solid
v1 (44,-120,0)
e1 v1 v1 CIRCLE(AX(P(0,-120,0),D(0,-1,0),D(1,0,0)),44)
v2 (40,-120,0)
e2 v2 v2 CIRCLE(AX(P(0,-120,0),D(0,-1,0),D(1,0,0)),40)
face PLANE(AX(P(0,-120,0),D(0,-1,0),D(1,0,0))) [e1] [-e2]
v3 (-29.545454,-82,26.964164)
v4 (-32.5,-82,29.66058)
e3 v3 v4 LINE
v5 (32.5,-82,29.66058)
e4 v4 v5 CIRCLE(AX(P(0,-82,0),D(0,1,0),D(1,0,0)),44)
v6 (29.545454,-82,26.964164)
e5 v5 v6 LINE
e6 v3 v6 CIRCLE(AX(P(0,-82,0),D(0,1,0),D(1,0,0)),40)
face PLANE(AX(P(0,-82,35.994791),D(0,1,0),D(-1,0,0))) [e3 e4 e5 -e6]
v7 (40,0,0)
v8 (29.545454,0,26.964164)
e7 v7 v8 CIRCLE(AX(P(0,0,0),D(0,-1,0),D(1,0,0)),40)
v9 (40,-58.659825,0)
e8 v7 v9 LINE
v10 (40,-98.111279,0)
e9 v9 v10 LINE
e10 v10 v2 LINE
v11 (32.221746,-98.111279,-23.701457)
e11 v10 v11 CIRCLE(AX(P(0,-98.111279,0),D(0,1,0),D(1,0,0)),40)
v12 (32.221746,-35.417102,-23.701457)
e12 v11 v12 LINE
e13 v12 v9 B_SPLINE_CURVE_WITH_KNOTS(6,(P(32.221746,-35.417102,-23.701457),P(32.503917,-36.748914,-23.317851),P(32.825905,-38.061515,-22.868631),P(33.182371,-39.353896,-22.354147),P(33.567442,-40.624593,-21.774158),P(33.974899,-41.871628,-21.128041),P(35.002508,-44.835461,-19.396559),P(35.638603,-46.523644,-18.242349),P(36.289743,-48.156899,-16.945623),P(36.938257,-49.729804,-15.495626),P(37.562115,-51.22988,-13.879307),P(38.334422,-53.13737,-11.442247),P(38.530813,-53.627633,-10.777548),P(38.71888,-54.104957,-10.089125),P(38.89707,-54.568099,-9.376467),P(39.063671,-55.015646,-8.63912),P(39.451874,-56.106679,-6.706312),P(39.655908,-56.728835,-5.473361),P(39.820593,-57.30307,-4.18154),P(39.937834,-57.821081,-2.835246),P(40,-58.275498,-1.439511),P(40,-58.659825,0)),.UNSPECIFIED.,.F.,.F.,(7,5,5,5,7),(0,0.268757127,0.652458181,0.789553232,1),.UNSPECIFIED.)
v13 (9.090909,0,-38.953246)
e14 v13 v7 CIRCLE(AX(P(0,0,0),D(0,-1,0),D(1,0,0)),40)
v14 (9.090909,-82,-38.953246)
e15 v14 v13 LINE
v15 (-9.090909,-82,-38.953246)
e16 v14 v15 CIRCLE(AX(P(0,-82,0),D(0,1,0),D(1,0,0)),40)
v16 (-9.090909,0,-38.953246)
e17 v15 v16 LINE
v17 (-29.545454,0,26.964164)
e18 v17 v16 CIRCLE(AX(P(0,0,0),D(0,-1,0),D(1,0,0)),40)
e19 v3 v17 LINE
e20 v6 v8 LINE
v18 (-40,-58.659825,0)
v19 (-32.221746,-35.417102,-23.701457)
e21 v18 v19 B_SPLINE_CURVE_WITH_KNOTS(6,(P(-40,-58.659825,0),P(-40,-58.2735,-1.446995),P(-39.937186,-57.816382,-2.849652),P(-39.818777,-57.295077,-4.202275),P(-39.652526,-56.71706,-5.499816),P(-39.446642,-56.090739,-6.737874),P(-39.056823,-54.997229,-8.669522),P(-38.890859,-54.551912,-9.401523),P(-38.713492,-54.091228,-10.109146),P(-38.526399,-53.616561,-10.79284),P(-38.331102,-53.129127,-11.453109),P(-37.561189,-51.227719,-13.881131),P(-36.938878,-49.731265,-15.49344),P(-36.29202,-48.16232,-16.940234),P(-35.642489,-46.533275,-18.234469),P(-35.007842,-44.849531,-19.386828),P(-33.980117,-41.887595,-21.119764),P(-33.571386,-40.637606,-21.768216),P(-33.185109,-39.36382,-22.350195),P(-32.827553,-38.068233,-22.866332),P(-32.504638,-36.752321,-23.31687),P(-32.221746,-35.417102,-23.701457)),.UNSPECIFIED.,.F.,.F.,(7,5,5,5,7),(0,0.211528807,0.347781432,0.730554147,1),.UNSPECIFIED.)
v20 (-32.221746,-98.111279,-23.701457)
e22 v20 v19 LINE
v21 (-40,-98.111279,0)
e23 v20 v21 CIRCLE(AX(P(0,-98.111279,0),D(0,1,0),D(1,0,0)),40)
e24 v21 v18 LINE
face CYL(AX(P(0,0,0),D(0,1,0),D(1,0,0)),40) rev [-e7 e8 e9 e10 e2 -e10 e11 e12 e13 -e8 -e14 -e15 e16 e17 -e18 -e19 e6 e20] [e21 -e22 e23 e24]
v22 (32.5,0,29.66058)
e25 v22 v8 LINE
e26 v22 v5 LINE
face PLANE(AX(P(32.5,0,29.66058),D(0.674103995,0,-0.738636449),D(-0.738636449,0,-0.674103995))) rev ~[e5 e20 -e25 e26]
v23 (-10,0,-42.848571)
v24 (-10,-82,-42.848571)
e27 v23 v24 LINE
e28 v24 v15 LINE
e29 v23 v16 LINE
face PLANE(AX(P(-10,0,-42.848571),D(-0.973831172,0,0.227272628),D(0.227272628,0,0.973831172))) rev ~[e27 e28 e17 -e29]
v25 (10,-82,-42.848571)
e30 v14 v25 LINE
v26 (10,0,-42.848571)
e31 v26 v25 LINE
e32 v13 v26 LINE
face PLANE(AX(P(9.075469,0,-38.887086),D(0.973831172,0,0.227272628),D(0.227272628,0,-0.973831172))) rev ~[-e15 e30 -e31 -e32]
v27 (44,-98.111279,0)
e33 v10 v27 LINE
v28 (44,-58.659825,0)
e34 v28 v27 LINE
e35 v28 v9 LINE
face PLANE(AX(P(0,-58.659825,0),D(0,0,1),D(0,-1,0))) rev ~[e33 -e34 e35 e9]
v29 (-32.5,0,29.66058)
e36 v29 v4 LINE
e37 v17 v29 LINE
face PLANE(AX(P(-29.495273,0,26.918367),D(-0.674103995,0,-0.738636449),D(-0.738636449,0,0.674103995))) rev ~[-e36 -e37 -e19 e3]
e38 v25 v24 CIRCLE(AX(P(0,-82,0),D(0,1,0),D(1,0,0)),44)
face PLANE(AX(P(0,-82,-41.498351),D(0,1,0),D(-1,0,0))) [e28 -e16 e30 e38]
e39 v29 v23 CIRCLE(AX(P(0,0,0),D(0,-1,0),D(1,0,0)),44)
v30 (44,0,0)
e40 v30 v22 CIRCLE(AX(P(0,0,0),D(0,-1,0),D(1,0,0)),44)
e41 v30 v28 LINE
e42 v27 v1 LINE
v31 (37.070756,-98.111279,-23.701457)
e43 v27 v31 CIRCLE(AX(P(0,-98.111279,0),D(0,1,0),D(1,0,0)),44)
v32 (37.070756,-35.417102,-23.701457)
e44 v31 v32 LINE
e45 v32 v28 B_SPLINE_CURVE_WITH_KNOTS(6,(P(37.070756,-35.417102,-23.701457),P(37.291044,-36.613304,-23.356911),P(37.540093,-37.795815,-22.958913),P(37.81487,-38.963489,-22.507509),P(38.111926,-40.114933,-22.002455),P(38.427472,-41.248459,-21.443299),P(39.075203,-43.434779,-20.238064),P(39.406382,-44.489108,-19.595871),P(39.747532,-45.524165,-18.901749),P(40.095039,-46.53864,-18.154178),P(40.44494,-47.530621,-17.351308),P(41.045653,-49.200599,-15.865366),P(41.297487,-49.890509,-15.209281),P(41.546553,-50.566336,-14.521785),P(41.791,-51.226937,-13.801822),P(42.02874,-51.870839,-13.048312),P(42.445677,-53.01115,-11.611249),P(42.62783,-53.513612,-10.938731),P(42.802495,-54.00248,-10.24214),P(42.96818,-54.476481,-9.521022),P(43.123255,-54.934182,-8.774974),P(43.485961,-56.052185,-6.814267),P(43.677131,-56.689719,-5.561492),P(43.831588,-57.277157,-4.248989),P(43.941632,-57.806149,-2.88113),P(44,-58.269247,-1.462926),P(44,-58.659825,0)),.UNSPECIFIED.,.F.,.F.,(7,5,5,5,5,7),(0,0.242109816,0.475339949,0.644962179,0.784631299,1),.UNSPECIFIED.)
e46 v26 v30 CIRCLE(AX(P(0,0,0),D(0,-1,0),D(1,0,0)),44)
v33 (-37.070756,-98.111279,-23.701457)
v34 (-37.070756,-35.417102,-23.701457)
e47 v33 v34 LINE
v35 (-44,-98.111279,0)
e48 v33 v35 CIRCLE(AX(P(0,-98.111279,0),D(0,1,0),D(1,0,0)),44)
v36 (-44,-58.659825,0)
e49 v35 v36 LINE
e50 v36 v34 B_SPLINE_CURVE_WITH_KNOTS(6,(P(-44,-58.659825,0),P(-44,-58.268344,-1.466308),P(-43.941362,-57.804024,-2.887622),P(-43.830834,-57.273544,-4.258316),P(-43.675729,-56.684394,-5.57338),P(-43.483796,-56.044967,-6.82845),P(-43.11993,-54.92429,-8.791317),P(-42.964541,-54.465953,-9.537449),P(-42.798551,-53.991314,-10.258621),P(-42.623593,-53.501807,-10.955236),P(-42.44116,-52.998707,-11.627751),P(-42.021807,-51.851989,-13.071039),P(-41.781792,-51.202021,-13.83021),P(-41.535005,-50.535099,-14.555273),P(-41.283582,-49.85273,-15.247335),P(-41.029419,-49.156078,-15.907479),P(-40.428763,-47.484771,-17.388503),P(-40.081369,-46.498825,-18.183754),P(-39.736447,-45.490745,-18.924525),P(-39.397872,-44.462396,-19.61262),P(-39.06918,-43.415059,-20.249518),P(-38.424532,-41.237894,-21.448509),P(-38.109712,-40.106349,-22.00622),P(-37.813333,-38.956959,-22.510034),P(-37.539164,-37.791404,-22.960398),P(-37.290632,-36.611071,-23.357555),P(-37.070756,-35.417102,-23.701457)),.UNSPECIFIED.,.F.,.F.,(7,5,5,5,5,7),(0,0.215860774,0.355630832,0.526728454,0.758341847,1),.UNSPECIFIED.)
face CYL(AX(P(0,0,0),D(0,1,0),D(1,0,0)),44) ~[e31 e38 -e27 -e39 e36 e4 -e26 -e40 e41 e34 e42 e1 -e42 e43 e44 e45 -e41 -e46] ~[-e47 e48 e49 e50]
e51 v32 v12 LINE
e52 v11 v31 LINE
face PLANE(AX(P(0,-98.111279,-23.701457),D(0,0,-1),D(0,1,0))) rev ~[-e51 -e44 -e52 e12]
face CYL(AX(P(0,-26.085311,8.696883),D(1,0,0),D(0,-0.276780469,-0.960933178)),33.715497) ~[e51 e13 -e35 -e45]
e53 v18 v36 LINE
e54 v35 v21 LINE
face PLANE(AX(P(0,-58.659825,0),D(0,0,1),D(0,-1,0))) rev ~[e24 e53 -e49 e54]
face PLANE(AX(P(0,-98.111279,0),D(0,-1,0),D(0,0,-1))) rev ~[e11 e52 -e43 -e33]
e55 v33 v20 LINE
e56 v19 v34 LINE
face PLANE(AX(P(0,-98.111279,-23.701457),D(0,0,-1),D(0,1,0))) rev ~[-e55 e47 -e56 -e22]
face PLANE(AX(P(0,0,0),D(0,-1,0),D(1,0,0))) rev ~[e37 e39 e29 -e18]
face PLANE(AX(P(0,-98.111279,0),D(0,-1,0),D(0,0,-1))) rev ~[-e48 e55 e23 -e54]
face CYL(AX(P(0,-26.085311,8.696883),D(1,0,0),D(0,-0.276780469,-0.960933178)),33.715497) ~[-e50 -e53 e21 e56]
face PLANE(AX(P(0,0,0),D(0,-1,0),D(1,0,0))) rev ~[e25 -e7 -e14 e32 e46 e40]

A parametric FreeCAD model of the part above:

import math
import FreeCAD as App
import Part
import Sketcher

V = App.Vector
Q = App.Units.Quantity

doc = App.newDocument("Part")
params = doc.addObject("Spreadsheet::Sheet", "Params")
for row, (alias, value) in enumerate([
    ("sketch1_diameter", "88 mm"),
    ("sketch1_diameter2", "80 mm"),
    ("pad1_length", "120 mm"),
    ("pocket1_length", "82 mm"),
    ("pocket2_length", "125 mm"),
], start=1):
    params.set(f"A{row}", alias)
    params.set(f"B{row}", "=" + value)
    params.setAlias(f"B{row}", alias)

body = doc.addObject("PartDesign::Body", "Body")

sketch1 = body.newObject("Sketcher::SketchObject", "Sketch")
sketch1.AttachmentSupport = (doc.getObject("XZ_Plane"), [""])
sketch1.MapMode = "FlatFace"
sketch1.addGeometry([
    Part.Circle(V(0, 0, 0), V(0, 0, 1), 44),
    Part.Circle(V(0, 0, 0), V(0, 0, 1), 40),
], False)
sketch1.addConstraint([
    Sketcher.Constraint("Coincident", 0, 3, -1, 1),
    Sketcher.Constraint("Coincident", 1, 3, -1, 1),
    Sketcher.Constraint("Diameter", 0, Q("88 mm")),
    Sketcher.Constraint("Diameter", 1, Q("80 mm")),
])
sketch1.setExpression("Constraints[2]", "Params.sketch1_diameter")
sketch1.setExpression("Constraints[3]", "Params.sketch1_diameter2")
pad1 = body.newObject("PartDesign::Pad", "Pad")
pad1.Profile = sketch1
pad1.setExpression("Length", "Params.pad1_length")

sketch2 = body.newObject("Sketcher::SketchObject", "Sketch001")
sketch2.AttachmentSupport = (doc.getObject("XZ_Plane"), [""])
sketch2.MapMode = "FlatFace"
sketch2.addGeometry([
    Part.LineSegment(V(9.1, -38.9, 0), V(10, -42.8, 0)),
    Part.ArcOfCircle(Part.Circle(V(0, -1.8, 0), V(0, 0, 1), 42.3), math.radians(-104), math.radians(-76)),
    Part.LineSegment(V(-10, -42.8, 0), V(-9.1, -38.9, 0)),
    Part.ArcOfCircle(Part.Circle(V(0, 0, 0), V(0, 0, 1), 39.9), math.radians(-103), math.radians(-77)),
    Part.LineSegment(V(32.5, 29.7, 0), V(29.5, 26.9, 0)),
    Part.ArcOfCircle(Part.Circle(V(0, 0, 0), V(0, 0, 1), 39.9), math.radians(42), math.radians(138)),
    Part.LineSegment(V(-29.5, 26.9, 0), V(-32.5, 29.7, 0)),
    Part.ArcOfCircle(Part.Circle(V(0, 0.2, 0), V(0, 0, 1), 43.8), math.radians(42), math.radians(138)),
], False)
sketch2.addConstraint([
    Sketcher.Constraint("Coincident", 0, 2, 1, 2),
    Sketcher.Constraint("Coincident", 1, 1, 2, 1),
    Sketcher.Constraint("Coincident", 2, 2, 3, 1),
    Sketcher.Constraint("Coincident", 3, 2, 0, 1),
    Sketcher.Constraint("Coincident", 4, 2, 5, 1),
    Sketcher.Constraint("Coincident", 5, 2, 6, 1),
    Sketcher.Constraint("Coincident", 6, 2, 7, 2),
    Sketcher.Constraint("Coincident", 7, 1, 4, 1),
    Sketcher.Constraint("Coincident", 5, 3, -1, 1),
    Sketcher.Constraint("Symmetric", 0, 2, 1, 1, -2),
    Sketcher.Constraint("Symmetric", 2, 2, 3, 2, -2),
    Sketcher.Constraint("Symmetric", 6, 2, 7, 1, -2),
    Sketcher.Constraint("Horizontal", 4, 2, 5, 2),
    Sketcher.Constraint("Equal", 2, 4),
    Sketcher.Constraint("DistanceX", -1, 1, 0, 2, Q("10 mm")),
    Sketcher.Constraint("DistanceX", 6, 2, -1, 1, Q("32.5 mm")),
    Sketcher.Constraint("Radius", 5, Q("39.932061 mm")),
    Sketcher.Constraint("Radius", 1, Q("42.250418 mm")),
    Sketcher.Constraint("Radius", 3, Q("39.932034 mm")),
    Sketcher.Constraint("Radius", 7, Q("43.845635 mm")),
    Sketcher.Constraint("DistanceY", 1, 3, 3, 3, Q("1.7986 mm")),
    Sketcher.Constraint("DistanceY", 1, 3, -1, 1, Q("1.798628 mm")),
    Sketcher.Constraint("DistanceX", 2, 2, -1, 1, Q("9.075469 mm")),
    Sketcher.Constraint("DistanceX", -1, 1, 4, 2, Q("29.495273 mm")),
])
pocket1 = body.newObject("PartDesign::Pocket", "Pocket")
pocket1.Profile = sketch2
pocket1.setExpression("Length", "Params.pocket1_length")
pocket1.Reversed = True

sketch3 = body.newObject("Sketcher::SketchObject", "Sketch002")
sketch3.AttachmentSupport = (doc.getObject("YZ_Plane"), [""])
sketch3.MapMode = "FlatFace"
sketch3.addGeometry([
    Part.LineSegment(V(-59, 0, 0), V(-98, 0, 0)),
    Part.LineSegment(V(-98, 0, 0), V(-98, -24, 0)),
    Part.LineSegment(V(-98, -24, 0), V(-35, -24, 0)),
    Part.ArcOfCircle(Part.Circle(V(-26, 9, 0), V(0, 0, 1), 34), math.radians(-165), math.radians(-106)),
], False)
sketch3.addConstraint([
    Sketcher.Constraint("Coincident", 0, 2, 1, 1),
    Sketcher.Constraint("Coincident", 1, 2, 2, 1),
    Sketcher.Constraint("Coincident", 2, 2, 3, 2),
    Sketcher.Constraint("Coincident", 3, 1, 0, 1),
    Sketcher.Constraint("Horizontal", 0),
    Sketcher.Constraint("Vertical", 1),
    Sketcher.Constraint("Horizontal", 2),
    Sketcher.Constraint("PointOnObject", 0, 2, -1),
    Sketcher.Constraint("Radius", 3, Q("33.715497 mm")),
    Sketcher.Constraint("DistanceX", 0, 2, 0, 1, Q("39.451454 mm")),
    Sketcher.Constraint("DistanceX", 2, 1, 2, 2, Q("62.694177 mm")),
    Sketcher.Constraint("DistanceY", 1, 2, 1, 1, Q("23.701457 mm")),
    Sketcher.Constraint("DistanceX", 3, 3, -1, 1, Q("26.085311 mm")),
])
pocket2 = body.newObject("PartDesign::Pocket", "Pocket001")
pocket2.Profile = sketch3
pocket2.setExpression("Length", "Params.pocket2_length")
pocket2.Midplane = True

doc.recompute()
